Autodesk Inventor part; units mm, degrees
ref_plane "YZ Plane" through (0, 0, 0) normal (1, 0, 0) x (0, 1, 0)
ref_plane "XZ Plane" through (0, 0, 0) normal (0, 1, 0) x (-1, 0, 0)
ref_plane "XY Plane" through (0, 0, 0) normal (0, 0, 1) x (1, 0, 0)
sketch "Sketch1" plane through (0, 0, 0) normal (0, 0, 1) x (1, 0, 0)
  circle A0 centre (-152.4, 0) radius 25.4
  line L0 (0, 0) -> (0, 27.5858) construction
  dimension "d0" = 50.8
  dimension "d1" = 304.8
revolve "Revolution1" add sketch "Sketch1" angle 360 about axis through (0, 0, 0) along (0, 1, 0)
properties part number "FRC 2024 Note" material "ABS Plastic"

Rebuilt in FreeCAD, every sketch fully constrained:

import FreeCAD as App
import Part
import Sketcher
from FreeCAD import Vector
Q = App.Units.Quantity

doc = App.newDocument("Part")
params = doc.addObject("Spreadsheet::Sheet", "Params")
for row, (alias, value) in enumerate([
    ("sketch1_diameter", "2 in"),
    ("revolution_angle", "360 deg"),
], start=1):
    params.set(f"A{row}", alias)
    params.set(f"B{row}", "=" + value)
    params.setAlias(f"B{row}", alias)

body = doc.addObject("PartDesign::Body", "Body")

# Sketch on XY plane
sketch1 = body.newObject("Sketcher::SketchObject", "Sketch")
sketch1.AttachmentSupport = (doc.getObject("XY_Plane"), [""])
sketch1.MapMode = "FlatFace"
sketch1.addGeometry(Part.Circle(Vector(-152, 0, 0), Vector(0, 0, 1), 25), False)
sketch1.addConstraint([
    Sketcher.Constraint("PointOnObject", 0, 3, -1),
    Sketcher.Constraint("Diameter", 0, Q("2 in")),
    Sketcher.Constraint("DistanceX", 0, 3, -1, 1, Q("6 in")),
])
sketch1.setExpression("Constraints[1]", "Params.sketch1_diameter")
revolution = body.newObject("PartDesign::Revolution", "Revolution")
revolution.Profile = sketch1
revolution.ReferenceAxis = (sketch1, ["V_Axis"])
revolution.setExpression("Angle", "Params.revolution_angle")

doc.recompute()
